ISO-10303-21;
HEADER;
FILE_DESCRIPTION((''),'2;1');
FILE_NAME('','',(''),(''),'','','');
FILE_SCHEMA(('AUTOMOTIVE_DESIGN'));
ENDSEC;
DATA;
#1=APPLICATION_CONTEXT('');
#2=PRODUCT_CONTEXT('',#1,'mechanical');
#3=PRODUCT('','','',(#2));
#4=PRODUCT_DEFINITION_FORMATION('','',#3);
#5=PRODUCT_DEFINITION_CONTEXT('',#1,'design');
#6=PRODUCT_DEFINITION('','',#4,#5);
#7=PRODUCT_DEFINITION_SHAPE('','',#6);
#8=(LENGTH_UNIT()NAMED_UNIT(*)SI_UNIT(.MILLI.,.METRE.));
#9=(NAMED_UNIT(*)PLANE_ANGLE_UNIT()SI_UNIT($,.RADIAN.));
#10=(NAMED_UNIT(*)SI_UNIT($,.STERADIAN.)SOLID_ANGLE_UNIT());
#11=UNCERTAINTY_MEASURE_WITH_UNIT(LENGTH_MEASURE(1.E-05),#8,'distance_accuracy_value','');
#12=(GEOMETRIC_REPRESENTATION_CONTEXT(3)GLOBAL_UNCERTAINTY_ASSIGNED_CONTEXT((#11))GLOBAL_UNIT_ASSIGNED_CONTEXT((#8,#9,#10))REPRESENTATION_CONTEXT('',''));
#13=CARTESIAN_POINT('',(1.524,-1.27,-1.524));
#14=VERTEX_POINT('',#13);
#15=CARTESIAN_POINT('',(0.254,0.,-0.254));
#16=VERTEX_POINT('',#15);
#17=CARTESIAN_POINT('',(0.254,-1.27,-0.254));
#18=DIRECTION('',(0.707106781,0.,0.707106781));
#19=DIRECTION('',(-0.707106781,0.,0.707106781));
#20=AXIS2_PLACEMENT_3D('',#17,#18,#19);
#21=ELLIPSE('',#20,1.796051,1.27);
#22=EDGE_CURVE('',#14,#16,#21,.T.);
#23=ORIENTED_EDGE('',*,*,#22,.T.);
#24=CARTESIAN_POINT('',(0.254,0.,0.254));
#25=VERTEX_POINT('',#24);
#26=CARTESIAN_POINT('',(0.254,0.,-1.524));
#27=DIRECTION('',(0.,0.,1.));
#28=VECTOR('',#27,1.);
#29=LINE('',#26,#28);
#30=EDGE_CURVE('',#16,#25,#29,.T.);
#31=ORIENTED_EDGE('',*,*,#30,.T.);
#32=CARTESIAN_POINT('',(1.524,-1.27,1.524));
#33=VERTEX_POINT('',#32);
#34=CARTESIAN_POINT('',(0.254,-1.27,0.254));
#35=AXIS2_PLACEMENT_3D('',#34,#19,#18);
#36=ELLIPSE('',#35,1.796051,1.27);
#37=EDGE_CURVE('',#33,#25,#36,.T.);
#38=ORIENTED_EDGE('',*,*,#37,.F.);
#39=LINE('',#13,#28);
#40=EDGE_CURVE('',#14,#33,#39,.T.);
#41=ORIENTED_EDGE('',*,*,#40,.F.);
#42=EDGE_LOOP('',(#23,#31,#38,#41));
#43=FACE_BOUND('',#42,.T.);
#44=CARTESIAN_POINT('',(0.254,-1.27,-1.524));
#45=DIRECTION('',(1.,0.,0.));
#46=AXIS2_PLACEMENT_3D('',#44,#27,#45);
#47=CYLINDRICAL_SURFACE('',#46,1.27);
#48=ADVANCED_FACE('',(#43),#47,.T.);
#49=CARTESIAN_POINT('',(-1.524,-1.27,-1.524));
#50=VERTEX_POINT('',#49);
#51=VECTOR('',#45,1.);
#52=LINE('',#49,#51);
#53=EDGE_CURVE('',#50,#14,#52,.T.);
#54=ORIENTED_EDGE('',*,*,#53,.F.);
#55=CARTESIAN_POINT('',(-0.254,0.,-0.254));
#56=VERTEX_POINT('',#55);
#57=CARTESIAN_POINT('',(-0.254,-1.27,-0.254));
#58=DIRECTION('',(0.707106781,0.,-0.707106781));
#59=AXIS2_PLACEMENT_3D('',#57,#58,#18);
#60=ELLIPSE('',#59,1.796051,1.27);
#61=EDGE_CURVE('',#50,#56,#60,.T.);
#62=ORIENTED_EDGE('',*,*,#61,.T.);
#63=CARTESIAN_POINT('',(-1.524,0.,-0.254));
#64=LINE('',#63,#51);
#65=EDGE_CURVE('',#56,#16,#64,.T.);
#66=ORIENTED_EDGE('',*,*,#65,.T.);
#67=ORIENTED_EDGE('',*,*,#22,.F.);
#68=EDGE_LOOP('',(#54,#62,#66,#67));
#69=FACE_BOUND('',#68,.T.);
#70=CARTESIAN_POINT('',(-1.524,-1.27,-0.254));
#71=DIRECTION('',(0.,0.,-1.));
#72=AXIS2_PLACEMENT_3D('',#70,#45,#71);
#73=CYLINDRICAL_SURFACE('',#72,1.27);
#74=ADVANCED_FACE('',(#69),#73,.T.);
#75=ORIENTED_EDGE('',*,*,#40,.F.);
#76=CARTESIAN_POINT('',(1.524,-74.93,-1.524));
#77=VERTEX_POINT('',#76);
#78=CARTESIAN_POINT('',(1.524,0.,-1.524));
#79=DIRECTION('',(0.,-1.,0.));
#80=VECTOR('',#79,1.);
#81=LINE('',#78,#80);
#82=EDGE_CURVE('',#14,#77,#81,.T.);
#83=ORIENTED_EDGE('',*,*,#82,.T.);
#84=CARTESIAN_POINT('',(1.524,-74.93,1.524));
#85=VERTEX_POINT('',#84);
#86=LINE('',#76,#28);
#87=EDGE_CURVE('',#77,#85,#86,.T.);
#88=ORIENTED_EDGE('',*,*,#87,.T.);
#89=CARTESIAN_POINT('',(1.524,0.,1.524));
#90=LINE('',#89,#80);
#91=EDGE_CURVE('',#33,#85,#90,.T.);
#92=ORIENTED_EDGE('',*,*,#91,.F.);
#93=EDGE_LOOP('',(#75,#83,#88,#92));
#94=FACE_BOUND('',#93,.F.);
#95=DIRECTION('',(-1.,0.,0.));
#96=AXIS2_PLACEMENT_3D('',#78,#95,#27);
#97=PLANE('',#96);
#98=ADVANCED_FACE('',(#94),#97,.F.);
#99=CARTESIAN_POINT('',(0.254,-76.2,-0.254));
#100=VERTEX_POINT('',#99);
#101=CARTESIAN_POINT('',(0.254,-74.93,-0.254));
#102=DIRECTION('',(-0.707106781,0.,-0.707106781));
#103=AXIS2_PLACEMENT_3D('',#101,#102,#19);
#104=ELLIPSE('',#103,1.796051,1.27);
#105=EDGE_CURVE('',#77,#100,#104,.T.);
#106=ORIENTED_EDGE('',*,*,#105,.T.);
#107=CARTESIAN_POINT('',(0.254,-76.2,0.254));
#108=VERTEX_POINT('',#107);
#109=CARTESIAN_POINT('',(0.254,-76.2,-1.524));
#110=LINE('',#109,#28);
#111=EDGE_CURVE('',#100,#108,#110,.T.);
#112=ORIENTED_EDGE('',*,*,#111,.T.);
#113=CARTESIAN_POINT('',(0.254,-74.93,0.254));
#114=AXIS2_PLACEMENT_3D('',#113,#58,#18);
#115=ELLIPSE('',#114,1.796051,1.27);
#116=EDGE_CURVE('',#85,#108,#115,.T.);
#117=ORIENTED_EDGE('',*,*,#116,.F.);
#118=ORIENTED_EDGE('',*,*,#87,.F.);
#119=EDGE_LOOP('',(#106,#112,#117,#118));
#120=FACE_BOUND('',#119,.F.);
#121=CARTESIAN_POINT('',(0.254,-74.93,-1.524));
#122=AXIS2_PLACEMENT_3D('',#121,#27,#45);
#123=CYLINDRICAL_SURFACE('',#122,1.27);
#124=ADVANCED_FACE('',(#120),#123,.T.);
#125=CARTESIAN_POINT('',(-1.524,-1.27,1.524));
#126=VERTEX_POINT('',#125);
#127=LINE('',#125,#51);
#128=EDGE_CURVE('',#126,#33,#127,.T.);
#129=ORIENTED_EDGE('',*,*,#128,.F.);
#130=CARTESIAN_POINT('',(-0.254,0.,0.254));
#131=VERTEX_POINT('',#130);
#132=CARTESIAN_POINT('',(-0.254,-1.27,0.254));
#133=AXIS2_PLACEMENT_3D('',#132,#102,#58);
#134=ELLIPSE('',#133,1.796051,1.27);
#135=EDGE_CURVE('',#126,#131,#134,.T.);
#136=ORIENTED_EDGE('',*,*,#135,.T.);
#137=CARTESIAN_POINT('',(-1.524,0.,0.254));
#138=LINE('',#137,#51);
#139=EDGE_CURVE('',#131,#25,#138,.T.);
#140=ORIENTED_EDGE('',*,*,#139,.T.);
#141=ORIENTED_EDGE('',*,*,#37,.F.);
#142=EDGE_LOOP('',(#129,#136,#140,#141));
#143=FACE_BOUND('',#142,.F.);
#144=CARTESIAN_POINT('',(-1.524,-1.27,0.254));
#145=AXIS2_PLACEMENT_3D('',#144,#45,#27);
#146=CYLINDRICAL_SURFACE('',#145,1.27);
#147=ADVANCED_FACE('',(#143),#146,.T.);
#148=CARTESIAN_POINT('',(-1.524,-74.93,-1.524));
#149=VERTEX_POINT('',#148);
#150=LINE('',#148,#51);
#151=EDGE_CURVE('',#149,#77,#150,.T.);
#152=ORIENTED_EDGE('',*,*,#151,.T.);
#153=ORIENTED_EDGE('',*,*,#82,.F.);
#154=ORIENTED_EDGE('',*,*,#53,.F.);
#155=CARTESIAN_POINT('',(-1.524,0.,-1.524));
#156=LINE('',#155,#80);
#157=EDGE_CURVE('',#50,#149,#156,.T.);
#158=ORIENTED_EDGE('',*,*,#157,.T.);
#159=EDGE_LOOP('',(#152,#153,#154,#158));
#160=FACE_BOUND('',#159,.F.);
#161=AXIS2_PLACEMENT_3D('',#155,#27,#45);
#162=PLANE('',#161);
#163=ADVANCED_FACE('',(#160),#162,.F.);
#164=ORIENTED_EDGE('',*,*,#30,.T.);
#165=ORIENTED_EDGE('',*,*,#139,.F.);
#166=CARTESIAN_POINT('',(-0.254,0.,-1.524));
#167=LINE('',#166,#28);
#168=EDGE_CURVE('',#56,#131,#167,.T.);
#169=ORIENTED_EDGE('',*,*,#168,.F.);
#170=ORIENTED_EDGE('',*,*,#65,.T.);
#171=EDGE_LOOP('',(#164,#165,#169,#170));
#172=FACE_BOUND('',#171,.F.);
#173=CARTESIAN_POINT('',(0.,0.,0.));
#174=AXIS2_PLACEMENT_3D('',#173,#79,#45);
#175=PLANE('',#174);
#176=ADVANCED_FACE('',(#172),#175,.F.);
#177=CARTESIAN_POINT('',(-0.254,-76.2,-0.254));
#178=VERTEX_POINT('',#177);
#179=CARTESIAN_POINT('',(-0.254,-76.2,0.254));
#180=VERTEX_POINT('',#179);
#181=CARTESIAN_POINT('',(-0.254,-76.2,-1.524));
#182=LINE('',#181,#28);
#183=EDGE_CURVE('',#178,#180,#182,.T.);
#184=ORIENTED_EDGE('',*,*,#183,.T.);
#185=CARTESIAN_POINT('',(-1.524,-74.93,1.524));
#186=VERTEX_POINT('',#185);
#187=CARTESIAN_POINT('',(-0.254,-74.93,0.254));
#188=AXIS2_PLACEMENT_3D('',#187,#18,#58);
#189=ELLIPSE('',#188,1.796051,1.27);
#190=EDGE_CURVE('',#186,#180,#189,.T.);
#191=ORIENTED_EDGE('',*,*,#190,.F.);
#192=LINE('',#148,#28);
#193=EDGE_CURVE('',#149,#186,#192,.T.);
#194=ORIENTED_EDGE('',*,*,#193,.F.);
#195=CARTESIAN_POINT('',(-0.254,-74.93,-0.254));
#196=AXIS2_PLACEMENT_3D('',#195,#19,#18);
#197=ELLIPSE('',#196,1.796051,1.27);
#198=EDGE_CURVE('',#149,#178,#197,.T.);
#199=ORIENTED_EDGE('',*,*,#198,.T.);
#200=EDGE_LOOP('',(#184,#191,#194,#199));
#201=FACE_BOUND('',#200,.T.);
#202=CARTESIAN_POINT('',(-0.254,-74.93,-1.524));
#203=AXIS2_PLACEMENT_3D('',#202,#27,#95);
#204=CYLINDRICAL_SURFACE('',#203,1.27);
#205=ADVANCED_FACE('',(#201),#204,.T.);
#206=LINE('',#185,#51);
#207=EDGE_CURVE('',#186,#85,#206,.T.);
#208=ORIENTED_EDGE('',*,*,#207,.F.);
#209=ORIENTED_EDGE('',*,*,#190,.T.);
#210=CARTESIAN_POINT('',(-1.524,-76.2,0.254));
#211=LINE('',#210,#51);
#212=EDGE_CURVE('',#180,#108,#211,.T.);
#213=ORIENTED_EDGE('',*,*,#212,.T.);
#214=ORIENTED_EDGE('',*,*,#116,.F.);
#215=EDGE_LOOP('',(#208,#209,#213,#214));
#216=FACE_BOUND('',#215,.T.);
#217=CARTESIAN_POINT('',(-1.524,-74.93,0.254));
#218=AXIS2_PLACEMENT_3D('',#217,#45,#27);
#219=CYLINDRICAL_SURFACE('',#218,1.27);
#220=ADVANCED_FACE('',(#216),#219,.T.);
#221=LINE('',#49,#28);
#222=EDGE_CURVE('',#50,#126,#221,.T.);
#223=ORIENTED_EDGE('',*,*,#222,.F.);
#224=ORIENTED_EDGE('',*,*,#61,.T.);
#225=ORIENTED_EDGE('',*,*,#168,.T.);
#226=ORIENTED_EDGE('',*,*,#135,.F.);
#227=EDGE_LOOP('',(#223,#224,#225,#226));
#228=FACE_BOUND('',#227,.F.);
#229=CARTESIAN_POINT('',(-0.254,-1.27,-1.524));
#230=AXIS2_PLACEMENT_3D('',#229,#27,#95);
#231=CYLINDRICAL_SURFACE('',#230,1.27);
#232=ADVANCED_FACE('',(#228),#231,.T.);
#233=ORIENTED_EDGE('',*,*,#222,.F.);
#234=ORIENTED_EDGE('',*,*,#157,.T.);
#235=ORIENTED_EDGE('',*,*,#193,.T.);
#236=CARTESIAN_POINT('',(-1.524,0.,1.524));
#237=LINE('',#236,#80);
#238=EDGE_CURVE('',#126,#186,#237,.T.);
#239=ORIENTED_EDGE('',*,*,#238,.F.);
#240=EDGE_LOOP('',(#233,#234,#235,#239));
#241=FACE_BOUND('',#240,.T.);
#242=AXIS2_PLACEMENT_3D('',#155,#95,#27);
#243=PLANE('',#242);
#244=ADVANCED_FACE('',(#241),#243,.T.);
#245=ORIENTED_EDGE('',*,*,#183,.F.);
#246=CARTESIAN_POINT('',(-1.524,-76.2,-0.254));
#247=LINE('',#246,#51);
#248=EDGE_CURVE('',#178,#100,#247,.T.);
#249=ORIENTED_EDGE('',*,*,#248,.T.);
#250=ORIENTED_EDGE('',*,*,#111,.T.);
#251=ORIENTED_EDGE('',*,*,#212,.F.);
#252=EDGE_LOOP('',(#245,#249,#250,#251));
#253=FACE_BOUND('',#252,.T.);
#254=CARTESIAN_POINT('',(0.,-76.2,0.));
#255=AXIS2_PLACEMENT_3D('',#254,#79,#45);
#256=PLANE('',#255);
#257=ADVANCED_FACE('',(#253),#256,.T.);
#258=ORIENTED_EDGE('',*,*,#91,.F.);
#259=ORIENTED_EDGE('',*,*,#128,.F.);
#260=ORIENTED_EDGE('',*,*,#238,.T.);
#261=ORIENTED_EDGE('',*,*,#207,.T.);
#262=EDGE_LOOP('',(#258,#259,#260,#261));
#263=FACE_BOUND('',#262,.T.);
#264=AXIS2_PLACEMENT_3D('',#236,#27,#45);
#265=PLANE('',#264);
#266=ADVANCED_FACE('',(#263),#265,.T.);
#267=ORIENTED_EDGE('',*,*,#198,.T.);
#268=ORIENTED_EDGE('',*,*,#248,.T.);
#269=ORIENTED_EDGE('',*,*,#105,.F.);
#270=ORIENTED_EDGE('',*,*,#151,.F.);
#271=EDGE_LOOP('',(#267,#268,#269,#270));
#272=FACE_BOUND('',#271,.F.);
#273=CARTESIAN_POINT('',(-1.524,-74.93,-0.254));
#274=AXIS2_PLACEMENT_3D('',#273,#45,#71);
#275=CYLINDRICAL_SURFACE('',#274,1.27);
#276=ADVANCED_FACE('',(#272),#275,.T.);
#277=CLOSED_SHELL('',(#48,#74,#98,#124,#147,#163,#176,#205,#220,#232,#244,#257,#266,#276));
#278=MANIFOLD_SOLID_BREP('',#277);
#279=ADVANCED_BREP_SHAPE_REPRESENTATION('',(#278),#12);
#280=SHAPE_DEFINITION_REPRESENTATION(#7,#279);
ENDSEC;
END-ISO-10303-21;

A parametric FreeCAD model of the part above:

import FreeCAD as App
import Part
import Sketcher

V = App.Vector
Q = App.Units.Quantity


def edges_at(feature, points):
    """Names of the edges that pass closest to the given points."""
    edges = feature.Shape.Edges
    near = lambda p: min(range(len(edges)), key=lambda i: edges[i].distToShape(Part.Vertex(*p))[0])
    return sorted({f"Edge{near(p) + 1}" for p in points})


def add_polygon(sketch, points):
    """Adds a closed chain of lines whose ends are joined by coincident constraints."""
    first, n = sketch.GeometryCount, len(points)
    for a, b in zip(points, points[1:] + points[:1]):
        sketch.addGeometry(Part.LineSegment(App.Vector(*a, 0), App.Vector(*b, 0)), False)
    for i in range(n):
        sketch.addConstraint(Sketcher.Constraint("Coincident", first + i, 2, first + (i + 1) % n, 1))

doc = App.newDocument("Part")
body = doc.addObject("PartDesign::Body", "Body")

# Sketch on XZ plane
sketch1 = body.newObject("Sketcher::SketchObject", "Sketch")
sketch1.AttachmentSupport = (doc.getObject("XZ_Plane"), [""])
sketch1.MapMode = "FlatFace"
add_polygon(sketch1, [(-1.5, 1.5), (-1.5, -1.5), (1.5, -1.5), (1.5, 1.5)])  # lines 0-3
sketch1.addConstraint([
    Sketcher.Constraint("Vertical", 0),
    Sketcher.Constraint("Horizontal", 1),
    Sketcher.Constraint("Vertical", 2),
    Sketcher.Constraint("Horizontal", 3),
    Sketcher.Constraint("Symmetric", 0, 2, 2, 2, -1, 1),
    Sketcher.Constraint("Equal", 3, 0),
    Sketcher.Constraint("DistanceX", 1, 1, 1, 2, Q("0.12 in")),
])
pad1 = body.newObject("PartDesign::Pad", "Pad")
pad1.Profile = sketch1
pad1.Length = Q("3 in")
doc.recompute()

fillet = body.newObject("PartDesign::Fillet", "Fillet")
fillet.Base = (pad1, edges_at(pad1, [
    (0, -76.2, 1.524),
    (1.524, -76.2, 0),
    (-1.524, -76.2, 0),
    (0, -76.2, -1.524),
    (1.524, 0, 0),
    (0, 0, -1.524),
    (0, 0, 1.524),
    (-1.524, 0, 0),
]))
fillet.Radius = Q("0.05 in")

doc.recompute()
